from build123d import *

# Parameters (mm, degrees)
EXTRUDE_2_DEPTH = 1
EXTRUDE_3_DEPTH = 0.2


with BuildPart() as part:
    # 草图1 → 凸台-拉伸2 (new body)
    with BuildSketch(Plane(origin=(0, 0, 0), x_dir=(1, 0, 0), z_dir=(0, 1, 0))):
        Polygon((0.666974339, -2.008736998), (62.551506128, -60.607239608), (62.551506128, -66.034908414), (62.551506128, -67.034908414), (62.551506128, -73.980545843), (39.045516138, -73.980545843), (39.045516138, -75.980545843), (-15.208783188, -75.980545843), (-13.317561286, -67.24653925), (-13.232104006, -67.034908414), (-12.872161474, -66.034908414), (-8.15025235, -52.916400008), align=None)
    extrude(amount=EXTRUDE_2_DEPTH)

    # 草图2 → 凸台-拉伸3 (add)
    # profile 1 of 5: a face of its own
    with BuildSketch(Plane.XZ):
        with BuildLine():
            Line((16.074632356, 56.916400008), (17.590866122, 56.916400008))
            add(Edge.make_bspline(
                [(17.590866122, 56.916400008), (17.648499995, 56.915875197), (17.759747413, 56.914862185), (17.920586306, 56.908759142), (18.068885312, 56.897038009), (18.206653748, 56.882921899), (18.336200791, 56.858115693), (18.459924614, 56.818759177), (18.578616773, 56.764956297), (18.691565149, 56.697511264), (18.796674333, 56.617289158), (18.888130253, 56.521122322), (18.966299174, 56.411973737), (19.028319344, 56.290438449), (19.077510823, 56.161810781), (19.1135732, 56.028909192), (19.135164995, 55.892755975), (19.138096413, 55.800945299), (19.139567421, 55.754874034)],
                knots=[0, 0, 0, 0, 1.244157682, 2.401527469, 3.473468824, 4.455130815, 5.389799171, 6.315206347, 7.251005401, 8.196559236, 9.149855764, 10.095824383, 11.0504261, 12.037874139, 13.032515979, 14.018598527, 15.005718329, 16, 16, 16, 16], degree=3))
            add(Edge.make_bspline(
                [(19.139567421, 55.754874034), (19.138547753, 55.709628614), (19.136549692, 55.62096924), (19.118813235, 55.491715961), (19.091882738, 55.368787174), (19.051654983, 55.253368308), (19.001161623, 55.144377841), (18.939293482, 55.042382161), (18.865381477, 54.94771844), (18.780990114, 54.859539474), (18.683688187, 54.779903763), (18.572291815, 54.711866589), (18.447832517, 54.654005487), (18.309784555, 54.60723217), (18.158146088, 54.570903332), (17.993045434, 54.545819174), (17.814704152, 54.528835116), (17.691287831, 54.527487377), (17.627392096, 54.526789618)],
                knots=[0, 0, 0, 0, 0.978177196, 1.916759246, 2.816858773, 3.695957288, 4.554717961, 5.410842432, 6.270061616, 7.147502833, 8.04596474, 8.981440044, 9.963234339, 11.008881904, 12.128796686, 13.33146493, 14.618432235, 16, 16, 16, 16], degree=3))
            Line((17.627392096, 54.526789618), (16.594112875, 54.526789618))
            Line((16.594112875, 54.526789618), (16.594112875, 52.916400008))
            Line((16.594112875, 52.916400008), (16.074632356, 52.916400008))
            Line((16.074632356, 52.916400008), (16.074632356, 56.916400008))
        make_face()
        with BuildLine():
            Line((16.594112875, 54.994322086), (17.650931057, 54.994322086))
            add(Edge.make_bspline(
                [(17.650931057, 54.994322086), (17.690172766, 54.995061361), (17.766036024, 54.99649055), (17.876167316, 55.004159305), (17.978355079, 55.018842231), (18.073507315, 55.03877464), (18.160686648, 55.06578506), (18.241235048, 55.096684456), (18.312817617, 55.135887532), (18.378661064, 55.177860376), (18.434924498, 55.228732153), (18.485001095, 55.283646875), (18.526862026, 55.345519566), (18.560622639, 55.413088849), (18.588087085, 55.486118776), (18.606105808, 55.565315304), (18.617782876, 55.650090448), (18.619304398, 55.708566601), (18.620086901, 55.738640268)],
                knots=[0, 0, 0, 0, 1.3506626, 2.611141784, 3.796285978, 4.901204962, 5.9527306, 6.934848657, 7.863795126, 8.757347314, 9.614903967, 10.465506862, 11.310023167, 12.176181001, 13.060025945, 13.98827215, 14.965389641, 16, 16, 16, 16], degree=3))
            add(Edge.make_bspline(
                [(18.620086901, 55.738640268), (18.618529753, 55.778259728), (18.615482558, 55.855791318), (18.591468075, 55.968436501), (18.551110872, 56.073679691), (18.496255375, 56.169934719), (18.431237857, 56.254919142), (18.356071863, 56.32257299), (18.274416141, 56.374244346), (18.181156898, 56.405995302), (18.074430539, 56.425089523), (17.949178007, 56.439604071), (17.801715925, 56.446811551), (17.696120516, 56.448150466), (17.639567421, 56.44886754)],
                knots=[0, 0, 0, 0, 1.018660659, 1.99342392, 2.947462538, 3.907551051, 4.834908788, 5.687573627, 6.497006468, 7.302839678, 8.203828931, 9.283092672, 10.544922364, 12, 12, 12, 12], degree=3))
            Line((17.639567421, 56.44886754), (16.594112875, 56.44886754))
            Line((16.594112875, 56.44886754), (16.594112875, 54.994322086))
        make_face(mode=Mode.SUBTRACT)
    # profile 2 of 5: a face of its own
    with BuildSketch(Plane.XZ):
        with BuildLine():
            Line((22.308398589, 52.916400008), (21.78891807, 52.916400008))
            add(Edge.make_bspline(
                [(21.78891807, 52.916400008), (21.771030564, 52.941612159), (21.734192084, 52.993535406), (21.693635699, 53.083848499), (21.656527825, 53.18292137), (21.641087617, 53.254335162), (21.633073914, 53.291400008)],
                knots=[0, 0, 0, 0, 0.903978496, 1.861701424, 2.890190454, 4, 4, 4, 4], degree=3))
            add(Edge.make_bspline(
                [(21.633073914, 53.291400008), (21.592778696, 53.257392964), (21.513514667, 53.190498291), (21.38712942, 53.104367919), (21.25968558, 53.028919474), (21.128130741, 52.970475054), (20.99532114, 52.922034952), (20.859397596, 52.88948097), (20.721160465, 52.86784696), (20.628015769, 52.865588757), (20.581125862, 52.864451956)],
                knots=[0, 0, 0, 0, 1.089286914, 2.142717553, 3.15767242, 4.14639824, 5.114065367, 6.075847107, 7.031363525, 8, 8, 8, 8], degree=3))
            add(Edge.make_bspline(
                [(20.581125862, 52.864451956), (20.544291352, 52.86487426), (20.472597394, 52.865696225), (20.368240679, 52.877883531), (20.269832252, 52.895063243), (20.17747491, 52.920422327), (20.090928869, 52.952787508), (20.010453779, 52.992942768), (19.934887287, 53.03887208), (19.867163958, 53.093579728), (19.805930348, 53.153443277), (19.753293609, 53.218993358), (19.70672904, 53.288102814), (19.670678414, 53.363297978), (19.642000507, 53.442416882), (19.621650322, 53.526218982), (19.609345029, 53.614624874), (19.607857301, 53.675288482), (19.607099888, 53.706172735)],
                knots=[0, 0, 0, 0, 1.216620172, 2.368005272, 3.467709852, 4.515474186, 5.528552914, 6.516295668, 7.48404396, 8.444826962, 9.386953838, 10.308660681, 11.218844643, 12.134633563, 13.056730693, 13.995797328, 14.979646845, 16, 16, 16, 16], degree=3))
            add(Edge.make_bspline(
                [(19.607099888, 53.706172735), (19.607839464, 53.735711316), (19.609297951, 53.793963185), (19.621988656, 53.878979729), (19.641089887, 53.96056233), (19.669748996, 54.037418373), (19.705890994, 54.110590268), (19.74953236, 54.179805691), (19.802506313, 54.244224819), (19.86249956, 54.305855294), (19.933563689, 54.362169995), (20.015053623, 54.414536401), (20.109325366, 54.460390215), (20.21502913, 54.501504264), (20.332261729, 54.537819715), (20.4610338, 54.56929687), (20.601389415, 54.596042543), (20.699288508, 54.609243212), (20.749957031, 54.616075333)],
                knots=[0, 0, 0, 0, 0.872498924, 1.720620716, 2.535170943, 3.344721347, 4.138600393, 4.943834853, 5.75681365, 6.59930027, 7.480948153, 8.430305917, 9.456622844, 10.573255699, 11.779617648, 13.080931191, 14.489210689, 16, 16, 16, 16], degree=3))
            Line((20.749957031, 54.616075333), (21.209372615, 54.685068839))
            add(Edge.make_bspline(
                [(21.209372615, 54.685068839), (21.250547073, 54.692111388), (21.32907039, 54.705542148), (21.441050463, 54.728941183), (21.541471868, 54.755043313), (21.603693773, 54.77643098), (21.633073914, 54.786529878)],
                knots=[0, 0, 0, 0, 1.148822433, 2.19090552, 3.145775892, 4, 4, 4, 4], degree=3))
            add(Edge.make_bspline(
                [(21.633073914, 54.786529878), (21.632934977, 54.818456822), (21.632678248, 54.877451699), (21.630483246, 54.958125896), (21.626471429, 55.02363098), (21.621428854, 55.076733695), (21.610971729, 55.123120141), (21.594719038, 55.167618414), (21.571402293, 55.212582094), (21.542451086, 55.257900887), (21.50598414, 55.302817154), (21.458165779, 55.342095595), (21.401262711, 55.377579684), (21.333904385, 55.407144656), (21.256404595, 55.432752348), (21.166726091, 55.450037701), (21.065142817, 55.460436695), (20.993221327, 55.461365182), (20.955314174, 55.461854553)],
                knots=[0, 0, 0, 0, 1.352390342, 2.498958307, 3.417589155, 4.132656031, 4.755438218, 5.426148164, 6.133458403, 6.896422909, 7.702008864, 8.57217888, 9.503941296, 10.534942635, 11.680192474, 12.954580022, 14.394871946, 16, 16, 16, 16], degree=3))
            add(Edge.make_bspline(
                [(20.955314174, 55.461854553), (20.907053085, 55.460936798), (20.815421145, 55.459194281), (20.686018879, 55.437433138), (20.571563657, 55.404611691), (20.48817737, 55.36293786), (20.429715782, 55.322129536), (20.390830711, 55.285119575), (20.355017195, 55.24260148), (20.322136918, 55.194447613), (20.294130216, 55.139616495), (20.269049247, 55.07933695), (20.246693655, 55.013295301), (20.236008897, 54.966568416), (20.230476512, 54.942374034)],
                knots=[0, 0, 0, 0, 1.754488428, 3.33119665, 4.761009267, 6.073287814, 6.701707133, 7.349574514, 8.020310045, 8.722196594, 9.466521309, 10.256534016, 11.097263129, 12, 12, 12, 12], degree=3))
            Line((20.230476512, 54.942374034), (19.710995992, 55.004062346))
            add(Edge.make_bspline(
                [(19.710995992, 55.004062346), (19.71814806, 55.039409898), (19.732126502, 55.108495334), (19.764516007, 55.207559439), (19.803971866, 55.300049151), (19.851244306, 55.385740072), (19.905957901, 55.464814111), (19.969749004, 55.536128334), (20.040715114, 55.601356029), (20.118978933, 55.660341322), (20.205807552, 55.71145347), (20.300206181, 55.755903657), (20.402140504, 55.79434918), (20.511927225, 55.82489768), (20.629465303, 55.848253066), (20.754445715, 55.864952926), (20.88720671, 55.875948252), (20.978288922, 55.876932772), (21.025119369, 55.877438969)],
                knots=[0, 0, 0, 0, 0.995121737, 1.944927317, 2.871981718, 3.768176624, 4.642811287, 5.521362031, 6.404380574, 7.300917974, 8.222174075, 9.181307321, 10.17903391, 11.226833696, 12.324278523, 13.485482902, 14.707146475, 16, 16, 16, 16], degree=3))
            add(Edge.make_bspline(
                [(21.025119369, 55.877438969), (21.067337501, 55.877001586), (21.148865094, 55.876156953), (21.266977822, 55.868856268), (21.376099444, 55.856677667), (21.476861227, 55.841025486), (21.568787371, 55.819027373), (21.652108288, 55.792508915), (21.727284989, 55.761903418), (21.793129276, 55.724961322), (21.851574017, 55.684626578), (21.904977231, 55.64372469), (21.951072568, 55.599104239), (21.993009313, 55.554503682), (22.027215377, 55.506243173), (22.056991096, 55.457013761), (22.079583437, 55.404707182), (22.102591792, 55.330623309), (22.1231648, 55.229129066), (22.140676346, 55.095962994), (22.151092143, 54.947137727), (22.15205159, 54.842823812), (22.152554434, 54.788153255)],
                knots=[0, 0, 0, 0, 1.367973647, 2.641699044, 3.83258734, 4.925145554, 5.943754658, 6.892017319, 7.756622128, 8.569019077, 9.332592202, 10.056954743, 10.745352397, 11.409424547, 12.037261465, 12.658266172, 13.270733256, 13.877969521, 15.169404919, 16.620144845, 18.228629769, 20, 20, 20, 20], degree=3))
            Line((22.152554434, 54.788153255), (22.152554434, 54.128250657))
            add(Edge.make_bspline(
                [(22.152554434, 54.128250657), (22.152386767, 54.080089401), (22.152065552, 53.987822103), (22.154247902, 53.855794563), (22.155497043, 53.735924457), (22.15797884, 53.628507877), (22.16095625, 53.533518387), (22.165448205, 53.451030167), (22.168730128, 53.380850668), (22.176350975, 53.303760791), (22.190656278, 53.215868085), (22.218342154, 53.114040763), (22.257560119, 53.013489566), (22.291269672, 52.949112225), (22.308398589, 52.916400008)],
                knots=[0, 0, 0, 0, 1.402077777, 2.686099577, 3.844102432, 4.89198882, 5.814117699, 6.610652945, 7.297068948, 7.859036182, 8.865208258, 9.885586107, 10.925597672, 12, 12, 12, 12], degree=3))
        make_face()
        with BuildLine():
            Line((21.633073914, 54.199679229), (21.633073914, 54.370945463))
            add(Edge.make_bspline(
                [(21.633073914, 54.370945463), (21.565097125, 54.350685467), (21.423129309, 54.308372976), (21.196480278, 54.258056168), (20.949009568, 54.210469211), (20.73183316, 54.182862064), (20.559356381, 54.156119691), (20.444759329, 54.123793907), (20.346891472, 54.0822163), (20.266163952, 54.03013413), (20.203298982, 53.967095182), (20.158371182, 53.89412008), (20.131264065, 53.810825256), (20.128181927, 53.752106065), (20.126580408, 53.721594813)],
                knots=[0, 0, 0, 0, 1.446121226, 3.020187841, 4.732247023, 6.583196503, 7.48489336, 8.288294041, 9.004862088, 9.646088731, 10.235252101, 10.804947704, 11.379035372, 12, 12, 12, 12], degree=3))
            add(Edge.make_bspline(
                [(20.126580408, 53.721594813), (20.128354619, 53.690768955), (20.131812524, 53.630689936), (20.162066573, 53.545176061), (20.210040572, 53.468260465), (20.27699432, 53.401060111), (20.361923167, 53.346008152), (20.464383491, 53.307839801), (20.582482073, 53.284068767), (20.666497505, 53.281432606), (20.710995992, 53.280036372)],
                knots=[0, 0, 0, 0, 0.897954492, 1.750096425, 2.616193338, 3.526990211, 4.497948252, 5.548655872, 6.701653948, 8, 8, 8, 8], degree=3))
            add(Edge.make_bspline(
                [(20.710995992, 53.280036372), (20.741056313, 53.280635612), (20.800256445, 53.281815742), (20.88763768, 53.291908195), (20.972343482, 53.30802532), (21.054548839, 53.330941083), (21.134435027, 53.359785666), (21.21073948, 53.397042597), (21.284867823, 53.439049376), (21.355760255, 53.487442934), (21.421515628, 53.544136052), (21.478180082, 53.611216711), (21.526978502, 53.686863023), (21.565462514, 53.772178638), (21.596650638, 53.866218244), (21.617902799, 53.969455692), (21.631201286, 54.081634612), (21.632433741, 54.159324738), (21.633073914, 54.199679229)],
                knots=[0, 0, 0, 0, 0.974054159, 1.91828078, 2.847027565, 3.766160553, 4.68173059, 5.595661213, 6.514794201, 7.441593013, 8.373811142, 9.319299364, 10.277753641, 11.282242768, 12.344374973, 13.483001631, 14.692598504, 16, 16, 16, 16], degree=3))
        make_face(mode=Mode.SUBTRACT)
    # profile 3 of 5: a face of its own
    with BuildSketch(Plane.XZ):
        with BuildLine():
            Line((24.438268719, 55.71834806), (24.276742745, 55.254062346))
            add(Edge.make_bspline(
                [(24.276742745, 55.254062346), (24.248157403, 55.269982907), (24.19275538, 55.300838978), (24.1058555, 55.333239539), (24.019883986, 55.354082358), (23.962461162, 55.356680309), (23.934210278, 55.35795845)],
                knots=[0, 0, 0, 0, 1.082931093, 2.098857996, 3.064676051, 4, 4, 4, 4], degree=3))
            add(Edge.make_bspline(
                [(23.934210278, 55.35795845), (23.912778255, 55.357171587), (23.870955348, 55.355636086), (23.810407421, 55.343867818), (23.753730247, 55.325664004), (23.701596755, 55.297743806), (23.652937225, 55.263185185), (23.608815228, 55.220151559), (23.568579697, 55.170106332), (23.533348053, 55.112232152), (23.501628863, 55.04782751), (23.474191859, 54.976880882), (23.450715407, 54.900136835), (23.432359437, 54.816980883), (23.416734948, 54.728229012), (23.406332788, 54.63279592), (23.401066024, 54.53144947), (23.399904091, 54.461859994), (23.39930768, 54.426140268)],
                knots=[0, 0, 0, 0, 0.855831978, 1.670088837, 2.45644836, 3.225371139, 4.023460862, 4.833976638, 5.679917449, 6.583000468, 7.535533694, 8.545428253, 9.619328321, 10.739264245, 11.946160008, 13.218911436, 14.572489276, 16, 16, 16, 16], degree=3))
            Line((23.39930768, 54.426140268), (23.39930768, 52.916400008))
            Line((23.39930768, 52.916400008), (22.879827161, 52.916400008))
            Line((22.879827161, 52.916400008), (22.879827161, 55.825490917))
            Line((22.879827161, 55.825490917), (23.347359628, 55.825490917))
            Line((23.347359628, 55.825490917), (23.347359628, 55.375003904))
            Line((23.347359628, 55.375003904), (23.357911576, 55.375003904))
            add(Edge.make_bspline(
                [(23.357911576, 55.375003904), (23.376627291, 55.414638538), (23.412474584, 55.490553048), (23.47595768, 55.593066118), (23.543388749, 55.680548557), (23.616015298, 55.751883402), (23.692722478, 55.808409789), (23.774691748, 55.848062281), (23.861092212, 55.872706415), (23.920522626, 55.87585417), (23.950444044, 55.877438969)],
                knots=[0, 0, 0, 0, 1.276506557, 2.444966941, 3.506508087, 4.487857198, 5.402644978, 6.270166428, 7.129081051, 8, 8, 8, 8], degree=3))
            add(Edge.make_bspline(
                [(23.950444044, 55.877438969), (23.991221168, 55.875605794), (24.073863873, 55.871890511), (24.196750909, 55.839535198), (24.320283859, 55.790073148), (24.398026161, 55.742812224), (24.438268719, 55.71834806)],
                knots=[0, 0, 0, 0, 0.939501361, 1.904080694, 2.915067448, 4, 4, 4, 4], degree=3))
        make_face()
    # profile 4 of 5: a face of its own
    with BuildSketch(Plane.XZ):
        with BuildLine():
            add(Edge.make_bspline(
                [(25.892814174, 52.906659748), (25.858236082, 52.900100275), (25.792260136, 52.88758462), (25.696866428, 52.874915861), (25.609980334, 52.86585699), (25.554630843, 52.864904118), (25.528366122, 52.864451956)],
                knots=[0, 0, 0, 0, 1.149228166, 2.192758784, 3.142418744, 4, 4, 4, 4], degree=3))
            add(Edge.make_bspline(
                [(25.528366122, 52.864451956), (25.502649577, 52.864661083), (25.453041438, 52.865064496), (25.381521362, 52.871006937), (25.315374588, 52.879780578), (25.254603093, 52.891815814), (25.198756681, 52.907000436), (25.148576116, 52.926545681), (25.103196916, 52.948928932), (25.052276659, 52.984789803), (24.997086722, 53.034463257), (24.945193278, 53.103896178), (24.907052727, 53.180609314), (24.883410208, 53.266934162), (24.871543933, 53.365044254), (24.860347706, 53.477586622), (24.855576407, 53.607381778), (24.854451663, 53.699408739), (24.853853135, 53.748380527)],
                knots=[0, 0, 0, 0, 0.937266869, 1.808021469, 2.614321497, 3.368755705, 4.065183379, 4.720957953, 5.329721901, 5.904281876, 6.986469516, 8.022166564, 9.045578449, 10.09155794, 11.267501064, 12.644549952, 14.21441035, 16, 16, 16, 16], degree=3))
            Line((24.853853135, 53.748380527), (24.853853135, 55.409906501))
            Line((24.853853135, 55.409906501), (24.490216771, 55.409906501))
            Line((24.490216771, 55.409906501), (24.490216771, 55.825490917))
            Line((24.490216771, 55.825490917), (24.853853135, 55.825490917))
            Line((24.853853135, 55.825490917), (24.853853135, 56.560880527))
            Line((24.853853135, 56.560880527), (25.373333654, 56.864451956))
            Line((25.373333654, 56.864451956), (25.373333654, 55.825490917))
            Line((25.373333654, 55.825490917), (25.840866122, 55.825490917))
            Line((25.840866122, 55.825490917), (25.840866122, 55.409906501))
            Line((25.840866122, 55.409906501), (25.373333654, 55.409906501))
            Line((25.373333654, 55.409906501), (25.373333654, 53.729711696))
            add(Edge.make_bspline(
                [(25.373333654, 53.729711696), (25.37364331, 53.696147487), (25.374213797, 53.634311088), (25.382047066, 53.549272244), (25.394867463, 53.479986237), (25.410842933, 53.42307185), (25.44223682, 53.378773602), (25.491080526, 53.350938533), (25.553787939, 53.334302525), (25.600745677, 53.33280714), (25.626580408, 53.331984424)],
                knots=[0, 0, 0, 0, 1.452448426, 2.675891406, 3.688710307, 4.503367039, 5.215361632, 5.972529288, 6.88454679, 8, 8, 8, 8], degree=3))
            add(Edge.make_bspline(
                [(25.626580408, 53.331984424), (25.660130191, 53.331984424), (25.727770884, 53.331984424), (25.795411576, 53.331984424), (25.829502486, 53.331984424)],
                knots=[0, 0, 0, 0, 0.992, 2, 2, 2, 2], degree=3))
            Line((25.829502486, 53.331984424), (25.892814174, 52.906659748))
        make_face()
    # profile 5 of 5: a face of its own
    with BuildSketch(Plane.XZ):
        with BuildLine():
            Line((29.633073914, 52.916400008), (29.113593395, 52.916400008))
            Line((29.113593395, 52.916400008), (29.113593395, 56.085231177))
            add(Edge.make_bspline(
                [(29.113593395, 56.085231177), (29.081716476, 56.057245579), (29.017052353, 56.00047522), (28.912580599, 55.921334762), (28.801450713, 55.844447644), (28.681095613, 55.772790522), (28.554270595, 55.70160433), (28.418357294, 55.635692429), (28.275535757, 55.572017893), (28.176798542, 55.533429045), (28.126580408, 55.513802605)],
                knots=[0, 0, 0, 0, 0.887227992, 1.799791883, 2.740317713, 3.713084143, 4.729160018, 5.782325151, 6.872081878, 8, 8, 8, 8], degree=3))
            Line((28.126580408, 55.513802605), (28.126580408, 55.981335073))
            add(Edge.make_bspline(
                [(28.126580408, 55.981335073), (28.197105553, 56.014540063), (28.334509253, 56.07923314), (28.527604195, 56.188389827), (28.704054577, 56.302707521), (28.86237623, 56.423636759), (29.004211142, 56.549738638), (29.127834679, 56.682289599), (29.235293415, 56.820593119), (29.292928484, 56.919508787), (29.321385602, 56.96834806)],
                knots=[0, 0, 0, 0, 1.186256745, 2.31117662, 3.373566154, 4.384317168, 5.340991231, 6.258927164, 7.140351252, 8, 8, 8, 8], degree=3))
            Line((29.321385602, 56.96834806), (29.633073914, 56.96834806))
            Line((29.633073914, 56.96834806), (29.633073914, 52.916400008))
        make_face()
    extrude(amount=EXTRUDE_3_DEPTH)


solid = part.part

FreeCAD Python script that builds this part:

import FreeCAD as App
import Part
import Sketcher
from FreeCAD import Vector

doc = App.newDocument("Part")
body = doc.addObject("PartDesign::Body", "Body")

# Sketch on XZ plane
sketch1 = doc.addObject("Sketcher::SketchObject", "Sketch")
body.addObject(sketch1)
sketch1.AttachmentSupport = (doc.XZ_Plane, [""])
sketch1.MapMode = "FlatFace"
sketch1.addGeometry([
    Part.LineSegment(Vector(62.55, 60.61, 0), Vector(0.67, 2.01, 0)),  # 0
    Part.LineSegment(Vector(0.67, 2.01, 0), Vector(-8.15, 52.92, 0)),  # 1
    Part.LineSegment(Vector(-8.15, 52.92, 0), Vector(-12.87, 66.03, 0)),  # 2
    Part.LineSegment(Vector(-12.87, 66.03, 0), Vector(-13.23, 67.03, 0)),  # 3
    Part.LineSegment(Vector(-13.23, 67.03, 0), Vector(-13.32, 67.25, 0)),  # 4
    Part.LineSegment(Vector(-13.32, 67.25, 0), Vector(-15.21, 75.98, 0)),  # 5
    Part.LineSegment(Vector(-15.21, 75.98, 0), Vector(39.05, 75.98, 0)),  # 6
    Part.LineSegment(Vector(39.05, 75.98, 0), Vector(39.05, 73.98, 0)),  # 7
    Part.LineSegment(Vector(39.05, 73.98, 0), Vector(62.55, 73.98, 0)),  # 8
    Part.LineSegment(Vector(62.55, 73.98, 0), Vector(62.55, 60.61, 0)),  # 9
], False)
sketch1.addConstraint([
    Sketcher.Constraint("Coincident", 0, 2, 1, 1),
    Sketcher.Constraint("Coincident", 1, 2, 2, 1),
    Sketcher.Constraint("Coincident", 2, 2, 3, 1),
    Sketcher.Constraint("Coincident", 3, 2, 4, 1),
    Sketcher.Constraint("Coincident", 4, 2, 5, 1),
    Sketcher.Constraint("Coincident", 5, 2, 6, 1),
    Sketcher.Constraint("Coincident", 6, 2, 7, 1),
    Sketcher.Constraint("Coincident", 7, 2, 8, 1),
    Sketcher.Constraint("Coincident", 8, 2, 9, 1),
    Sketcher.Constraint("Coincident", 9, 2, 0, 1),
    Sketcher.Constraint("Horizontal", 6),
    Sketcher.Constraint("Vertical", 7),
    Sketcher.Constraint("Horizontal", 8),
    Sketcher.Constraint("Vertical", 9),
    Sketcher.Constraint("Parallel", 2, 3),
    Sketcher.Constraint("DistanceY", 7, 2, 7, 1, 2.0),
    Sketcher.Constraint("DistanceY", 2, 2, 3, 2, 1.0),
    Sketcher.Constraint("DistanceX", 6, 1, 6, 2, 54.254299),
    Sketcher.Constraint("DistanceX", 8, 1, 8, 2, 23.50599),
    Sketcher.Constraint("DistanceY", -1, 1, 1, 2, 52.9164),
    Sketcher.Constraint("DistanceX", 4, 2, 2, 2, 0.4454),
    Sketcher.Constraint("Distance", 0, 85.226051),
    Sketcher.Constraint("Distance", 2, 13.942442),
    Sketcher.Constraint("Distance", 5, 8.936419),
    Sketcher.Constraint("DistanceY", 9, 2, 9, 1, 13.373306),
    Sketcher.Constraint("DistanceX", 2, 2, -1, 1, 12.872161),
    Sketcher.Constraint("DistanceY", -1, 1, 2, 2, 66.034908),
    Sketcher.Constraint("DistanceY", -1, 1, 4, 2, 67.246539),
    Sketcher.Constraint("DistanceY", -1, 1, 9, 2, 60.60724),
    Sketcher.Constraint("DistanceY", 0, 2, 2, 2, 64.026171),
])
pad1 = doc.addObject("PartDesign::Pad", "Pad")
body.addObject(pad1)
pad1.Profile = sketch1
pad1.Length = 1
pad1.Reversed = True

# Sketch on XZ plane
sketch2 = doc.addObject("Sketcher::SketchObject", "Sketch001")
body.addObject(sketch2)
sketch2.AttachmentSupport = (doc.XZ_Plane, [""])
sketch2.MapMode = "FlatFace"
sketch2.addGeometry([
    Part.LineSegment(Vector(17.590866, 56.9164, 0), Vector(16.074632, 56.9164, 0)),  # 0
    Part.LineSegment(Vector(16.074632, 56.9164, 0), Vector(16.074632, 52.9164, 0)),  # 1
    Part.LineSegment(Vector(16.074632, 52.9164, 0), Vector(16.594113, 52.9164, 0)),  # 2
    Part.LineSegment(Vector(16.594113, 52.9164, 0), Vector(16.594113, 54.52679, 0)),  # 3
    Part.LineSegment(Vector(16.594113, 54.52679, 0), Vector(17.627392, 54.52679, 0)),  # 4
    Part.BSplineCurve([Vector(19.139567, 55.754874, 0), Vector(19.138548, 55.709629, 0), Vector(19.13655, 55.620969, 0), Vector(19.118813, 55.491716, 0), Vector(19.091883, 55.368787, 0), Vector(19.051655, 55.253368, 0), Vector(19.001162, 55.144378, 0), Vector(18.939293, 55.042382, 0), Vector(18.865381, 54.947718, 0), Vector(18.78099, 54.859539, 0), Vector(18.683688, 54.779904, 0), Vector(18.572292, 54.711867, 0), Vector(18.447833, 54.654005, 0), Vector(18.309785, 54.607232, 0), Vector(18.158146, 54.570903, 0), Vector(17.993045, 54.545819, 0), Vector(17.814704, 54.528835, 0), Vector(17.691288, 54.527487, 0), Vector(17.627392, 54.52679, 0)], [4, 1, 1, 1, 1, 1, 1, 1, 1, 1, 1, 1, 1, 1, 1, 1, 4], [0, 0.978177196, 1.916759246, 2.816858773, 3.695957288, 4.554717961, 5.410842432, 6.270061616, 7.147502833, 8.04596474, 8.981440044, 9.963234339, 11.008881904, 12.128796686, 13.33146493, 14.618432235, 16], False, 3, [1, 1, 1, 1, 1, 1, 1, 1, 1, 1, 1, 1, 1, 1, 1, 1, 1, 1, 1], False),  # 5
    Part.BSplineCurve([Vector(17.590866, 56.9164, 0), Vector(17.6485, 56.915875, 0), Vector(17.759747, 56.914862, 0), Vector(17.920586, 56.908759, 0), Vector(18.068885, 56.897038, 0), Vector(18.206654, 56.882922, 0), Vector(18.336201, 56.858116, 0), Vector(18.459925, 56.818759, 0), Vector(18.578617, 56.764956, 0), Vector(18.691565, 56.697511, 0), Vector(18.796674, 56.617289, 0), Vector(18.88813, 56.521122, 0), Vector(18.966299, 56.411974, 0), Vector(19.028319, 56.290438, 0), Vector(19.077511, 56.161811, 0), Vector(19.113573, 56.028909, 0), Vector(19.135165, 55.892756, 0), Vector(19.138096, 55.800945, 0), Vector(19.139567, 55.754874, 0)], [4, 1, 1, 1, 1, 1, 1, 1, 1, 1, 1, 1, 1, 1, 1, 1, 4], [0, 1.244157682, 2.401527469, 3.473468824, 4.455130815, 5.389799171, 6.315206347, 7.251005401, 8.196559236, 9.149855764, 10.095824383, 11.0504261, 12.037874139, 13.032515979, 14.018598527, 15.005718329, 16], False, 3, [1, 1, 1, 1, 1, 1, 1, 1, 1, 1, 1, 1, 1, 1, 1, 1, 1, 1, 1], False),  # 6
    Part.LineSegment(Vector(16.594113, 54.994322, 0), Vector(16.594113, 56.448868, 0)),  # 7
    Part.LineSegment(Vector(16.594113, 56.448868, 0), Vector(17.639567, 56.448868, 0)),  # 8
    Part.BSplineCurve([Vector(18.620087, 55.73864, 0), Vector(18.61853, 55.77826, 0), Vector(18.615483, 55.855791, 0), Vector(18.591468, 55.968437, 0), Vector(18.551111, 56.07368, 0), Vector(18.496255, 56.169935, 0), Vector(18.431238, 56.254919, 0), Vector(18.356072, 56.322573, 0), Vector(18.274416, 56.374244, 0), Vector(18.181157, 56.405995, 0), Vector(18.074431, 56.42509, 0), Vector(17.949178, 56.439604, 0), Vector(17.801716, 56.446812, 0), Vector(17.696121, 56.44815, 0), Vector(17.639567, 56.448868, 0)], [4, 1, 1, 1, 1, 1, 1, 1, 1, 1, 1, 1, 4], [0, 1.018660659, 1.99342392, 2.947462538, 3.907551051, 4.834908788, 5.687573627, 6.497006468, 7.302839678, 8.203828931, 9.283092672, 10.544922364, 12], False, 3, [1, 1, 1, 1, 1, 1, 1, 1, 1, 1, 1, 1, 1, 1, 1], False),  # 9
    Part.BSplineCurve([Vector(17.650931, 54.994322, 0), Vector(17.690173, 54.995061, 0), Vector(17.766036, 54.996491, 0), Vector(17.876167, 55.004159, 0), Vector(17.978355, 55.018842, 0), Vector(18.073507, 55.038775, 0), Vector(18.160687, 55.065785, 0), Vector(18.241235, 55.096684, 0), Vector(18.312818, 55.135888, 0), Vector(18.378661, 55.17786, 0), Vector(18.434924, 55.228732, 0), Vector(18.485001, 55.283647, 0), Vector(18.526862, 55.34552, 0), Vector(18.560623, 55.413089, 0), Vector(18.588087, 55.486119, 0), Vector(18.606106, 55.565315, 0), Vector(18.617783, 55.65009, 0), Vector(18.619304, 55.708567, 0), Vector(18.620087, 55.73864, 0)], [4, 1, 1, 1, 1, 1, 1, 1, 1, 1, 1, 1, 1, 1, 1, 1, 4], [0, 1.3506626, 2.611141784, 3.796285978, 4.901204962, 5.9527306, 6.934848657, 7.863795126, 8.757347314, 9.614903967, 10.465506862, 11.310023167, 12.176181001, 13.060025945, 13.98827215, 14.965389641, 16], False, 3, [1, 1, 1, 1, 1, 1, 1, 1, 1, 1, 1, 1, 1, 1, 1, 1, 1, 1, 1], False),  # 10
    Part.LineSegment(Vector(17.650931, 54.994322, 0), Vector(16.594113, 54.994322, 0)),  # 11
    Part.LineSegment(Vector(21.788918, 52.9164, 0), Vector(22.308399, 52.9164, 0)),  # 12
    Part.BSplineCurve([Vector(22.152554, 54.128251, 0), Vector(22.152387, 54.080089, 0), Vector(22.152066, 53.987822, 0), Vector(22.154248, 53.855795, 0), Vector(22.155497, 53.735924, 0), Vector(22.157979, 53.628508, 0), Vector(22.160956, 53.533518, 0), Vector(22.165448, 53.45103, 0), Vector(22.16873, 53.380851, 0), Vector(22.176351, 53.303761, 0), Vector(22.190656, 53.215868, 0), Vector(22.218342, 53.114041, 0), Vector(22.25756, 53.01349, 0), Vector(22.29127, 52.949112, 0), Vector(22.308399, 52.9164, 0)], [4, 1, 1, 1, 1, 1, 1, 1, 1, 1, 1, 1, 4], [0, 1.402077777, 2.686099577, 3.844102432, 4.89198882, 5.814117699, 6.610652945, 7.297068948, 7.859036182, 8.865208258, 9.885586107, 10.925597672, 12], False, 3, [1, 1, 1, 1, 1, 1, 1, 1, 1, 1, 1, 1, 1, 1, 1], False),  # 13
    Part.LineSegment(Vector(22.152554, 54.128251, 0), Vector(22.152554, 54.788153, 0)),  # 14
    Part.BSplineCurve([Vector(21.025119, 55.877439, 0), Vector(21.067338, 55.877002, 0), Vector(21.148865, 55.876157, 0), Vector(21.266978, 55.868856, 0), Vector(21.376099, 55.856678, 0), Vector(21.476861, 55.841025, 0), Vector(21.568787, 55.819027, 0), Vector(21.652108, 55.792509, 0), Vector(21.727285, 55.761903, 0), Vector(21.793129, 55.724961, 0), Vector(21.851574, 55.684627, 0), Vector(21.904977, 55.643725, 0), Vector(21.951073, 55.599104, 0), Vector(21.993009, 55.554504, 0), Vector(22.027215, 55.506243, 0), Vector(22.056991, 55.457014, 0), Vector(22.079583, 55.404707, 0), Vector(22.102592, 55.330623, 0), Vector(22.123165, 55.229129, 0), Vector(22.140676, 55.095963, 0), Vector(22.151092, 54.947138, 0), Vector(22.152052, 54.842824, 0), Vector(22.152554, 54.788153, 0)], [4, 1, 1, 1, 1, 1, 1, 1, 1, 1, 1, 1, 1, 1, 1, 1, 1, 1, 1, 1, 4], [0, 1.367973647, 2.641699044, 3.83258734, 4.925145554, 5.943754658, 6.892017319, 7.756622128, 8.569019077, 9.332592202, 10.056954743, 10.745352397, 11.409424547, 12.037261465, 12.658266172, 13.270733256, 13.877969521, 15.169404919, 16.620144845, 18.228629769, 20], False, 3, [1, 1, 1, 1, 1, 1, 1, 1, 1, 1, 1, 1, 1, 1, 1, 1, 1, 1, 1, 1, 1, 1, 1], False),  # 15
    Part.BSplineCurve([Vector(19.710996, 55.004062, 0), Vector(19.718148, 55.03941, 0), Vector(19.732127, 55.108495, 0), Vector(19.764516, 55.207559, 0), Vector(19.803972, 55.300049, 0), Vector(19.851244, 55.38574, 0), Vector(19.905958, 55.464814, 0), Vector(19.969749, 55.536128, 0), Vector(20.040715, 55.601356, 0), Vector(20.118979, 55.660341, 0), Vector(20.205808, 55.711453, 0), Vector(20.300206, 55.755904, 0), Vector(20.402141, 55.794349, 0), Vector(20.511927, 55.824898, 0), Vector(20.629465, 55.848253, 0), Vector(20.754446, 55.864953, 0), Vector(20.887207, 55.875948, 0), Vector(20.978289, 55.876933, 0), Vector(21.025119, 55.877439, 0)], [4, 1, 1, 1, 1, 1, 1, 1, 1, 1, 1, 1, 1, 1, 1, 1, 4], [0, 0.995121737, 1.944927317, 2.871981718, 3.768176624, 4.642811287, 5.521362031, 6.404380574, 7.300917974, 8.222174075, 9.181307321, 10.17903391, 11.226833696, 12.324278523, 13.485482902, 14.707146475, 16], False, 3, [1, 1, 1, 1, 1, 1, 1, 1, 1, 1, 1, 1, 1, 1, 1, 1, 1, 1, 1], False),  # 16
    Part.LineSegment(Vector(19.710996, 55.004062, 0), Vector(20.230477, 54.942374, 0)),  # 17
    Part.BSplineCurve([Vector(20.955314, 55.461855, 0), Vector(20.907053, 55.460937, 0), Vector(20.815421, 55.459194, 0), Vector(20.686019, 55.437433, 0), Vector(20.571564, 55.404612, 0), Vector(20.488177, 55.362938, 0), Vector(20.429716, 55.32213, 0), Vector(20.390831, 55.28512, 0), Vector(20.355017, 55.242601, 0), Vector(20.322137, 55.194448, 0), Vector(20.29413, 55.139616, 0), Vector(20.269049, 55.079337, 0), Vector(20.246694, 55.013295, 0), Vector(20.236009, 54.966568, 0), Vector(20.230477, 54.942374, 0)], [4, 1, 1, 1, 1, 1, 1, 1, 1, 1, 1, 1, 4], [0, 1.754488428, 3.33119665, 4.761009267, 6.073287814, 6.701707133, 7.349574514, 8.020310045, 8.722196594, 9.466521309, 10.256534016, 11.097263129, 12], False, 3, [1, 1, 1, 1, 1, 1, 1, 1, 1, 1, 1, 1, 1, 1, 1], False),  # 18
    Part.BSplineCurve([Vector(21.633074, 54.78653, 0), Vector(21.632935, 54.818457, 0), Vector(21.632678, 54.877452, 0), Vector(21.630483, 54.958126, 0), Vector(21.626471, 55.023631, 0), Vector(21.621429, 55.076734, 0), Vector(21.610972, 55.12312, 0), Vector(21.594719, 55.167618, 0), Vector(21.571402, 55.212582, 0), Vector(21.542451, 55.257901, 0), Vector(21.505984, 55.302817, 0), Vector(21.458166, 55.342096, 0), Vector(21.401263, 55.37758, 0), Vector(21.333904, 55.407145, 0), Vector(21.256405, 55.432752, 0), Vector(21.166726, 55.450038, 0), Vector(21.065143, 55.460437, 0), Vector(20.993221, 55.461365, 0), Vector(20.955314, 55.461855, 0)], [4, 1, 1, 1, 1, 1, 1, 1, 1, 1, 1, 1, 1, 1, 1, 1, 4], [0, 1.352390342, 2.498958307, 3.417589155, 4.132656031, 4.755438218, 5.426148164, 6.133458403, 6.896422909, 7.702008864, 8.57217888, 9.503941296, 10.534942635, 11.680192474, 12.954580022, 14.394871946, 16], False, 3, [1, 1, 1, 1, 1, 1, 1, 1, 1, 1, 1, 1, 1, 1, 1, 1, 1, 1, 1], False),  # 19
    Part.BSplineCurve([Vector(21.209373, 54.685069, 0), Vector(21.250547, 54.692111, 0), Vector(21.32907, 54.705542, 0), Vector(21.44105, 54.728941, 0), Vector(21.541472, 54.755043, 0), Vector(21.603694, 54.776431, 0), Vector(21.633074, 54.78653, 0)], [4, 1, 1, 1, 4], [0, 1.148822433, 2.19090552, 3.145775892, 4], False, 3, [1, 1, 1, 1, 1, 1, 1], False),  # 20
    Part.LineSegment(Vector(21.209373, 54.685069, 0), Vector(20.749957, 54.616075, 0)),  # 21
    Part.BSplineCurve([Vector(19.6071, 53.706173, 0), Vector(19.607839, 53.735711, 0), Vector(19.609298, 53.793963, 0), Vector(19.621989, 53.87898, 0), Vector(19.64109, 53.960562, 0), Vector(19.669749, 54.037418, 0), Vector(19.705891, 54.11059, 0), Vector(19.749532, 54.179806, 0), Vector(19.802506, 54.244225, 0), Vector(19.8625, 54.305855, 0), Vector(19.933564, 54.36217, 0), Vector(20.015054, 54.414536, 0), Vector(20.109325, 54.46039, 0), Vector(20.215029, 54.501504, 0), Vector(20.332262, 54.53782, 0), Vector(20.461034, 54.569297, 0), Vector(20.601389, 54.596043, 0), Vector(20.699289, 54.609243, 0), Vector(20.749957, 54.616075, 0)], [4, 1, 1, 1, 1, 1, 1, 1, 1, 1, 1, 1, 1, 1, 1, 1, 4], [0, 0.872498924, 1.720620716, 2.535170943, 3.344721347, 4.138600393, 4.943834853, 5.75681365, 6.59930027, 7.480948153, 8.430305917, 9.456622844, 10.573255699, 11.779617648, 13.080931191, 14.489210689, 16], False, 3, [1, 1, 1, 1, 1, 1, 1, 1, 1, 1, 1, 1, 1, 1, 1, 1, 1, 1, 1], False),  # 22
    Part.BSplineCurve([Vector(20.581126, 52.864452, 0), Vector(20.544291, 52.864874, 0), Vector(20.472597, 52.865696, 0), Vector(20.368241, 52.877884, 0), Vector(20.269832, 52.895063, 0), Vector(20.177475, 52.920422, 0), Vector(20.090929, 52.952788, 0), Vector(20.010454, 52.992943, 0), Vector(19.934887, 53.038872, 0), Vector(19.867164, 53.09358, 0), Vector(19.80593, 53.153443, 0), Vector(19.753294, 53.218993, 0), Vector(19.706729, 53.288103, 0), Vector(19.670678, 53.363298, 0), Vector(19.642001, 53.442417, 0), Vector(19.62165, 53.526219, 0), Vector(19.609345, 53.614625, 0), Vector(19.607857, 53.675288, 0), Vector(19.6071, 53.706173, 0)], [4, 1, 1, 1, 1, 1, 1, 1, 1, 1, 1, 1, 1, 1, 1, 1, 4], [0, 1.216620172, 2.368005272, 3.467709852, 4.515474186, 5.528552914, 6.516295668, 7.48404396, 8.444826962, 9.386953838, 10.308660681, 11.218844643, 12.134633563, 13.056730693, 13.995797328, 14.979646845, 16], False, 3, [1, 1, 1, 1, 1, 1, 1, 1, 1, 1, 1, 1, 1, 1, 1, 1, 1, 1, 1], False),  # 23
    Part.BSplineCurve([Vector(21.633074, 53.2914, 0), Vector(21.592779, 53.257393, 0), Vector(21.513515, 53.190498, 0), Vector(21.387129, 53.104368, 0), Vector(21.259686, 53.028919, 0), Vector(21.128131, 52.970475, 0), Vector(20.995321, 52.922035, 0), Vector(20.859398, 52.889481, 0), Vector(20.72116, 52.867847, 0), Vector(20.628016, 52.865589, 0), Vector(20.581126, 52.864452, 0)], [4, 1, 1, 1, 1, 1, 1, 1, 4], [0, 1.089286914, 2.142717553, 3.15767242, 4.14639824, 5.114065367, 6.075847107, 7.031363525, 8], False, 3, [1, 1, 1, 1, 1, 1, 1, 1, 1, 1, 1], False),  # 24
    Part.BSplineCurve([Vector(21.788918, 52.9164, 0), Vector(21.771031, 52.941612, 0), Vector(21.734192, 52.993535, 0), Vector(21.693636, 53.083848, 0), Vector(21.656528, 53.182921, 0), Vector(21.641088, 53.254335, 0), Vector(21.633074, 53.2914, 0)], [4, 1, 1, 1, 4], [0, 0.903978496, 1.861701424, 2.890190454, 4], False, 3, [1, 1, 1, 1, 1, 1, 1], False),  # 25
    Part.BSplineCurve([Vector(20.710996, 53.280036, 0), Vector(20.741056, 53.280636, 0), Vector(20.800256, 53.281816, 0), Vector(20.887638, 53.291908, 0), Vector(20.972343, 53.308025, 0), Vector(21.054549, 53.330941, 0), Vector(21.134435, 53.359786, 0), Vector(21.210739, 53.397043, 0), Vector(21.284868, 53.439049, 0), Vector(21.35576, 53.487443, 0), Vector(21.421516, 53.544136, 0), Vector(21.47818, 53.611217, 0), Vector(21.526979, 53.686863, 0), Vector(21.565463, 53.772179, 0), Vector(21.596651, 53.866218, 0), Vector(21.617903, 53.969456, 0), Vector(21.631201, 54.081635, 0), Vector(21.632434, 54.159325, 0), Vector(21.633074, 54.199679, 0)], [4, 1, 1, 1, 1, 1, 1, 1, 1, 1, 1, 1, 1, 1, 1, 1, 4], [0, 0.974054159, 1.91828078, 2.847027565, 3.766160553, 4.68173059, 5.595661213, 6.514794201, 7.441593013, 8.373811142, 9.319299364, 10.277753641, 11.282242768, 12.344374973, 13.483001631, 14.692598504, 16], False, 3, [1, 1, 1, 1, 1, 1, 1, 1, 1, 1, 1, 1, 1, 1, 1, 1, 1, 1, 1], False),  # 26
    Part.BSplineCurve([Vector(20.12658, 53.721595, 0), Vector(20.128355, 53.690769, 0), Vector(20.131813, 53.63069, 0), Vector(20.162067, 53.545176, 0), Vector(20.210041, 53.46826, 0), Vector(20.276994, 53.40106, 0), Vector(20.361923, 53.346008, 0), Vector(20.464383, 53.30784, 0), Vector(20.582482, 53.284069, 0), Vector(20.666498, 53.281433, 0), Vector(20.710996, 53.280036, 0)], [4, 1, 1, 1, 1, 1, 1, 1, 4], [0, 0.897954492, 1.750096425, 2.616193338, 3.526990211, 4.497948252, 5.548655872, 6.701653948, 8], False, 3, [1, 1, 1, 1, 1, 1, 1, 1, 1, 1, 1], False),  # 27
    Part.BSplineCurve([Vector(21.633074, 54.370945, 0), Vector(21.565097, 54.350685, 0), Vector(21.423129, 54.308373, 0), Vector(21.19648, 54.258056, 0), Vector(20.94901, 54.210469, 0), Vector(20.731833, 54.182862, 0), Vector(20.559356, 54.15612, 0), Vector(20.444759, 54.123794, 0), Vector(20.346891, 54.082216, 0), Vector(20.266164, 54.030134, 0), Vector(20.203299, 53.967095, 0), Vector(20.158371, 53.89412, 0), Vector(20.131264, 53.810825, 0), Vector(20.128182, 53.752106, 0), Vector(20.12658, 53.721595, 0)], [4, 1, 1, 1, 1, 1, 1, 1, 1, 1, 1, 1, 4], [0, 1.446121226, 3.020187841, 4.732247023, 6.583196503, 7.48489336, 8.288294041, 9.004862088, 9.646088731, 10.235252101, 10.804947704, 11.379035372, 12], False, 3, [1, 1, 1, 1, 1, 1, 1, 1, 1, 1, 1, 1, 1, 1, 1], False),  # 28
    Part.LineSegment(Vector(21.633074, 54.370945, 0), Vector(21.633074, 54.199679, 0)),  # 29
    Part.LineSegment(Vector(24.276743, 55.254062, 0), Vector(24.438269, 55.718348, 0)),  # 30
    Part.BSplineCurve([Vector(23.950444, 55.877439, 0), Vector(23.991221, 55.875606, 0), Vector(24.073864, 55.871891, 0), Vector(24.196751, 55.839535, 0), Vector(24.320284, 55.790073, 0), Vector(24.398026, 55.742812, 0), Vector(24.438269, 55.718348, 0)], [4, 1, 1, 1, 4], [0, 0.939501361, 1.904080694, 2.915067448, 4], False, 3, [1, 1, 1, 1, 1, 1, 1], False),  # 31
    Part.BSplineCurve([Vector(23.357912, 55.375004, 0), Vector(23.376627, 55.414639, 0), Vector(23.412475, 55.490553, 0), Vector(23.475958, 55.593066, 0), Vector(23.543389, 55.680549, 0), Vector(23.616015, 55.751883, 0), Vector(23.692722, 55.80841, 0), Vector(23.774692, 55.848062, 0), Vector(23.861092, 55.872706, 0), Vector(23.920523, 55.875854, 0), Vector(23.950444, 55.877439, 0)], [4, 1, 1, 1, 1, 1, 1, 1, 4], [0, 1.276506557, 2.444966941, 3.506508087, 4.487857198, 5.402644978, 6.270166428, 7.129081051, 8], False, 3, [1, 1, 1, 1, 1, 1, 1, 1, 1, 1, 1], False),  # 32
    Part.LineSegment(Vector(23.357912, 55.375004, 0), Vector(23.34736, 55.375004, 0)),  # 33
    Part.LineSegment(Vector(23.34736, 55.375004, 0), Vector(23.34736, 55.825491, 0)),  # 34
    Part.LineSegment(Vector(23.34736, 55.825491, 0), Vector(22.879827, 55.825491, 0)),  # 35
    Part.LineSegment(Vector(22.879827, 55.825491, 0), Vector(22.879827, 52.9164, 0)),  # 36
    Part.LineSegment(Vector(22.879827, 52.9164, 0), Vector(23.399308, 52.9164, 0)),  # 37
    Part.LineSegment(Vector(23.399308, 52.9164, 0), Vector(23.399308, 54.42614, 0)),  # 38
    Part.BSplineCurve([Vector(23.93421, 55.357958, 0), Vector(23.912778, 55.357172, 0), Vector(23.870955, 55.355636, 0), Vector(23.810407, 55.343868, 0), Vector(23.75373, 55.325664, 0), Vector(23.701597, 55.297744, 0), Vector(23.652937, 55.263185, 0), Vector(23.608815, 55.220152, 0), Vector(23.56858, 55.170106, 0), Vector(23.533348, 55.112232, 0), Vector(23.501629, 55.047828, 0), Vector(23.474192, 54.976881, 0), Vector(23.450715, 54.900137, 0), Vector(23.432359, 54.816981, 0), Vector(23.416735, 54.728229, 0), Vector(23.406333, 54.632796, 0), Vector(23.401066, 54.531449, 0), Vector(23.399904, 54.46186, 0), Vector(23.399308, 54.42614, 0)], [4, 1, 1, 1, 1, 1, 1, 1, 1, 1, 1, 1, 1, 1, 1, 1, 4], [0, 0.855831978, 1.670088837, 2.45644836, 3.225371139, 4.023460862, 4.833976638, 5.679917449, 6.583000468, 7.535533694, 8.545428253, 9.619328321, 10.739264245, 11.946160008, 13.218911436, 14.572489276, 16], False, 3, [1, 1, 1, 1, 1, 1, 1, 1, 1, 1, 1, 1, 1, 1, 1, 1, 1, 1, 1], False),  # 39
    Part.BSplineCurve([Vector(24.276743, 55.254062, 0), Vector(24.248157, 55.269983, 0), Vector(24.192755, 55.300839, 0), Vector(24.105856, 55.33324, 0), Vector(24.019884, 55.354082, 0), Vector(23.962461, 55.35668, 0), Vector(23.93421, 55.357958, 0)], [4, 1, 1, 1, 4], [0, 1.082931093, 2.098857996, 3.064676051, 4], False, 3, [1, 1, 1, 1, 1, 1, 1], False),  # 40
    Part.BSplineCurve([Vector(25.892814, 52.90666, 0), Vector(25.858236, 52.9001, 0), Vector(25.79226, 52.887585, 0), Vector(25.696866, 52.874916, 0), Vector(25.60998, 52.865857, 0), Vector(25.554631, 52.864904, 0), Vector(25.528366, 52.864452, 0)], [4, 1, 1, 1, 4], [0, 1.149228166, 2.192758784, 3.142418744, 4], False, 3, [1, 1, 1, 1, 1, 1, 1], False),  # 41
    Part.LineSegment(Vector(25.892814, 52.90666, 0), Vector(25.829502, 53.331984, 0)),  # 42
    Part.BSplineCurve([Vector(25.62658, 53.331984, 0), Vector(25.66013, 53.331984, 0), Vector(25.727771, 53.331984, 0), Vector(25.795412, 53.331984, 0), Vector(25.829502, 53.331984, 0)], [4, 1, 4], [0, 0.992, 2], False, 3, [1, 1, 1, 1, 1], False),  # 43
    Part.BSplineCurve([Vector(25.373334, 53.729712, 0), Vector(25.373643, 53.696147, 0), Vector(25.374214, 53.634311, 0), Vector(25.382047, 53.549272, 0), Vector(25.394867, 53.479986, 0), Vector(25.410843, 53.423072, 0), Vector(25.442237, 53.378774, 0), Vector(25.491081, 53.350939, 0), Vector(25.553788, 53.334303, 0), Vector(25.600746, 53.332807, 0), Vector(25.62658, 53.331984, 0)], [4, 1, 1, 1, 1, 1, 1, 1, 4], [0, 1.452448426, 2.675891406, 3.688710307, 4.503367039, 5.215361632, 5.972529288, 6.88454679, 8], False, 3, [1, 1, 1, 1, 1, 1, 1, 1, 1, 1, 1], False),  # 44
    Part.LineSegment(Vector(25.373334, 53.729712, 0), Vector(25.373334, 55.409907, 0)),  # 45
    Part.LineSegment(Vector(25.373334, 55.409907, 0), Vector(25.840866, 55.409907, 0)),  # 46
    Part.LineSegment(Vector(25.840866, 55.409907, 0), Vector(25.840866, 55.825491, 0)),  # 47
    Part.LineSegment(Vector(25.840866, 55.825491, 0), Vector(25.373334, 55.825491, 0)),  # 48
    Part.LineSegment(Vector(25.373334, 55.825491, 0), Vector(25.373334, 56.864452, 0)),  # 49
    Part.LineSegment(Vector(25.373334, 56.864452, 0), Vector(24.853853, 56.560881, 0)),  # 50
    Part.LineSegment(Vector(24.853853, 56.560881, 0), Vector(24.853853, 55.825491, 0)),  # 51
    Part.LineSegment(Vector(24.853853, 55.825491, 0), Vector(24.490217, 55.825491, 0)),  # 52
    Part.LineSegment(Vector(24.490217, 55.825491, 0), Vector(24.490217, 55.409907, 0)),  # 53
    Part.LineSegment(Vector(24.490217, 55.409907, 0), Vector(24.853853, 55.409907, 0)),  # 54
    Part.LineSegment(Vector(24.853853, 55.409907, 0), Vector(24.853853, 53.748381, 0)),  # 55
    Part.BSplineCurve([Vector(25.528366, 52.864452, 0), Vector(25.50265, 52.864661, 0), Vector(25.453041, 52.865064, 0), Vector(25.381521, 52.871007, 0), Vector(25.315375, 52.879781, 0), Vector(25.254603, 52.891816, 0), Vector(25.198757, 52.907, 0), Vector(25.148576, 52.926546, 0), Vector(25.103197, 52.948929, 0), Vector(25.052277, 52.98479, 0), Vector(24.997087, 53.034463, 0), Vector(24.945193, 53.103896, 0), Vector(24.907053, 53.180609, 0), Vector(24.88341, 53.266934, 0), Vector(24.871544, 53.365044, 0), Vector(24.860348, 53.477587, 0), Vector(24.855576, 53.607382, 0), Vector(24.854452, 53.699409, 0), Vector(24.853853, 53.748381, 0)], [4, 1, 1, 1, 1, 1, 1, 1, 1, 1, 1, 1, 1, 1, 1, 1, 4], [0, 0.937266869, 1.808021469, 2.614321497, 3.368755705, 4.065183379, 4.720957953, 5.329721901, 5.904281876, 6.986469516, 8.022166564, 9.045578449, 10.09155794, 11.267501064, 12.644549952, 14.21441035, 16], False, 3, [1, 1, 1, 1, 1, 1, 1, 1, 1, 1, 1, 1, 1, 1, 1, 1, 1, 1, 1], False),  # 56
    Part.LineSegment(Vector(29.113593, 52.9164, 0), Vector(29.633074, 52.9164, 0)),  # 57
    Part.LineSegment(Vector(29.633074, 52.9164, 0), Vector(29.633074, 56.968348, 0)),  # 58
    Part.LineSegment(Vector(29.633074, 56.968348, 0), Vector(29.321386, 56.968348, 0)),  # 59
    Part.BSplineCurve([Vector(28.12658, 55.981335, 0), Vector(28.197106, 56.01454, 0), Vector(28.334509, 56.079233, 0), Vector(28.527604, 56.18839, 0), Vector(28.704055, 56.302708, 0), Vector(28.862376, 56.423637, 0), Vector(29.004211, 56.549739, 0), Vector(29.127835, 56.68229, 0), Vector(29.235293, 56.820593, 0), Vector(29.292928, 56.919509, 0), Vector(29.321386, 56.968348, 0)], [4, 1, 1, 1, 1, 1, 1, 1, 4], [0, 1.186256745, 2.31117662, 3.373566154, 4.384317168, 5.340991231, 6.258927164, 7.140351252, 8], False, 3, [1, 1, 1, 1, 1, 1, 1, 1, 1, 1, 1], False),  # 60
    Part.LineSegment(Vector(28.12658, 55.981335, 0), Vector(28.12658, 55.513803, 0)),  # 61
    Part.BSplineCurve([Vector(29.113593, 56.085231, 0), Vector(29.081716, 56.057246, 0), Vector(29.017052, 56.000475, 0), Vector(28.912581, 55.921335, 0), Vector(28.801451, 55.844448, 0), Vector(28.681096, 55.772791, 0), Vector(28.554271, 55.701604, 0), Vector(28.418357, 55.635692, 0), Vector(28.275536, 55.572018, 0), Vector(28.176799, 55.533429, 0), Vector(28.12658, 55.513803, 0)], [4, 1, 1, 1, 1, 1, 1, 1, 4], [0, 0.887227992, 1.799791883, 2.740317713, 3.713084143, 4.729160018, 5.782325151, 6.872081878, 8], False, 3, [1, 1, 1, 1, 1, 1, 1, 1, 1, 1, 1], False),  # 62
    Part.LineSegment(Vector(29.113593, 56.085231, 0), Vector(29.113593, 52.9164, 0)),  # 63
], False)
sketch2.addConstraint([
    Sketcher.Constraint("Block", 5),
    Sketcher.Constraint("Block", 6),
    Sketcher.Constraint("Block", 9),
    Sketcher.Constraint("Block", 10),
    Sketcher.Constraint("Block", 13),
    Sketcher.Constraint("Block", 15),
    Sketcher.Constraint("Block", 16),
    Sketcher.Constraint("Block", 18),
    Sketcher.Constraint("Block", 19),
    Sketcher.Constraint("Block", 20),
    Sketcher.Constraint("Block", 22),
    Sketcher.Constraint("Block", 23),
    Sketcher.Constraint("Block", 24),
    Sketcher.Constraint("Block", 25),
    Sketcher.Constraint("Block", 26),
    Sketcher.Constraint("Block", 27),
    Sketcher.Constraint("Block", 28),
    Sketcher.Constraint("Block", 31),
    Sketcher.Constraint("Block", 32),
    Sketcher.Constraint("Block", 39),
    Sketcher.Constraint("Block", 40),
    Sketcher.Constraint("Block", 41),
    Sketcher.Constraint("Block", 43),
    Sketcher.Constraint("Block", 44),
    Sketcher.Constraint("Block", 56),
    Sketcher.Constraint("Block", 60),
    Sketcher.Constraint("Block", 62),
    Sketcher.Constraint("Coincident", 0, 2, 1, 1),
    Sketcher.Constraint("Coincident", 1, 2, 2, 1),
    Sketcher.Constraint("Coincident", 2, 2, 3, 1),
    Sketcher.Constraint("Coincident", 3, 2, 4, 1),
    Sketcher.Constraint("Coincident", 4, 2, 5, 2),
    Sketcher.Constraint("Coincident", 6, 1, 0, 1),
    Sketcher.Constraint("Coincident", 7, 2, 8, 1),
    Sketcher.Constraint("Coincident", 8, 2, 9, 2),
    Sketcher.Constraint("Coincident", 10, 1, 11, 1),
    Sketcher.Constraint("Coincident", 11, 2, 7, 1),
    Sketcher.Constraint("Coincident", 12, 2, 13, 2),
    Sketcher.Constraint("Coincident", 13, 1, 14, 1),
    Sketcher.Constraint("Coincident", 14, 2, 15, 2),
    Sketcher.Constraint("Coincident", 16, 1, 17, 1),
    Sketcher.Constraint("Coincident", 17, 2, 18, 2),
    Sketcher.Constraint("Coincident", 20, 1, 21, 1),
    Sketcher.Constraint("Coincident", 21, 2, 22, 2),
    Sketcher.Constraint("Coincident", 25, 1, 12, 1),
    Sketcher.Constraint("Coincident", 28, 1, 29, 1),
    Sketcher.Constraint("Coincident", 29, 2, 26, 2),
    Sketcher.Constraint("Coincident", 30, 2, 31, 2),
    Sketcher.Constraint("Coincident", 32, 1, 33, 1),
    Sketcher.Constraint("Coincident", 33, 2, 34, 1),
    Sketcher.Constraint("Coincident", 34, 2, 35, 1),
    Sketcher.Constraint("Coincident", 35, 2, 36, 1),
    Sketcher.Constraint("Coincident", 36, 2, 37, 1),
    Sketcher.Constraint("Coincident", 37, 2, 38, 1),
    Sketcher.Constraint("Coincident", 38, 2, 39, 2),
    Sketcher.Constraint("Coincident", 40, 1, 30, 1),
    Sketcher.Constraint("Coincident", 41, 1, 42, 1),
    Sketcher.Constraint("Coincident", 42, 2, 43, 2),
    Sketcher.Constraint("Coincident", 44, 1, 45, 1),
    Sketcher.Constraint("Coincident", 45, 2, 46, 1),
    Sketcher.Constraint("Coincident", 46, 2, 47, 1),
    Sketcher.Constraint("Coincident", 47, 2, 48, 1),
    Sketcher.Constraint("Coincident", 48, 2, 49, 1),
    Sketcher.Constraint("Coincident", 49, 2, 50, 1),
    Sketcher.Constraint("Coincident", 50, 2, 51, 1),
    Sketcher.Constraint("Coincident", 51, 2, 52, 1),
    Sketcher.Constraint("Coincident", 52, 2, 53, 1),
    Sketcher.Constraint("Coincident", 53, 2, 54, 1),
    Sketcher.Constraint("Coincident", 54, 2, 55, 1),
    Sketcher.Constraint("Coincident", 55, 2, 56, 2),
    Sketcher.Constraint("Coincident", 57, 2, 58, 1),
    Sketcher.Constraint("Coincident", 58, 2, 59, 1),
    Sketcher.Constraint("Coincident", 59, 2, 60, 2),
    Sketcher.Constraint("Coincident", 60, 1, 61, 1),
    Sketcher.Constraint("Coincident", 61, 2, 62, 2),
    Sketcher.Constraint("Coincident", 62, 1, 63, 1),
    Sketcher.Constraint("Coincident", 63, 2, 57, 1),
    Sketcher.Constraint("Horizontal", 0),
    Sketcher.Constraint("Vertical", 1),
    Sketcher.Constraint("Horizontal", 2),
    Sketcher.Constraint("Vertical", 3),
    Sketcher.Constraint("Horizontal", 4),
    Sketcher.Constraint("Vertical", 7),
    Sketcher.Constraint("Horizontal", 8),
    Sketcher.Constraint("Horizontal", 11),
    Sketcher.Constraint("Horizontal", 33),
    Sketcher.Constraint("Vertical", 34),
    Sketcher.Constraint("Horizontal", 35),
    Sketcher.Constraint("Vertical", 36),
    Sketcher.Constraint("Horizontal", 37),
    Sketcher.Constraint("Vertical", 38),
    Sketcher.Constraint("Vertical", 45),
    Sketcher.Constraint("Horizontal", 46),
    Sketcher.Constraint("Vertical", 47),
    Sketcher.Constraint("Horizontal", 48),
    Sketcher.Constraint("Vertical", 49),
    Sketcher.Constraint("Vertical", 51),
    Sketcher.Constraint("Horizontal", 52),
    Sketcher.Constraint("Vertical", 53),
    Sketcher.Constraint("Horizontal", 54),
    Sketcher.Constraint("Vertical", 55),
    Sketcher.Constraint("Horizontal", 57),
    Sketcher.Constraint("Vertical", 58),
    Sketcher.Constraint("Horizontal", 59),
    Sketcher.Constraint("Vertical", 63),
    Sketcher.Constraint("DistanceY", 1, 2, 1, 1, 4.0),
    Sketcher.Constraint("DistanceX", 2, 1, 2, 2, 0.519481),
    Sketcher.Constraint("DistanceX", 4, 1, 4, 2, 1.033279),
    Sketcher.Constraint("DistanceX", 11, 2, 11, 1, 1.056818),
    Sketcher.Constraint("DistanceX", 33, 2, 33, 1, 0.010552),
    Sketcher.Constraint("DistanceX", 37, 1, 37, 2, 0.519481),
    Sketcher.Constraint("DistanceX", 57, 1, 57, 2, 0.519481),
    Sketcher.Constraint("DistanceY", 36, 2, 36, 1, 2.909091),
    Sketcher.Constraint("DistanceY", 38, 1, 38, 2, 1.50974),
    Sketcher.Constraint("DistanceY", 49, 1, 49, 2, 1.038961),
    Sketcher.Constraint("DistanceY", 51, 2, 51, 1, 0.73539),
    Sketcher.Constraint("DistanceY", 58, 1, 58, 2, 4.051948),
    Sketcher.Constraint("DistanceX", 46, 1, 46, 2, 0.467532),
    Sketcher.Constraint("DistanceX", 48, 2, 48, 1, 0.467532),
    Sketcher.Constraint("DistanceX", 52, 2, 52, 1, 0.363636),
    Sketcher.Constraint("DistanceX", 54, 1, 54, 2, 0.363636),
    Sketcher.Constraint("DistanceY", 45, 1, 45, 2, 1.680195),
    Sketcher.Constraint("DistanceY", 47, 1, 47, 2, 0.415584),
    Sketcher.Constraint("DistanceY", 53, 2, 53, 1, 0.415584),
    Sketcher.Constraint("DistanceY", 55, 2, 55, 1, 1.661526),
])
pad2 = doc.addObject("PartDesign::Pad", "Pad001")
body.addObject(pad2)
pad2.Profile = sketch2
pad2.Length = 0.2

doc.recompute()
